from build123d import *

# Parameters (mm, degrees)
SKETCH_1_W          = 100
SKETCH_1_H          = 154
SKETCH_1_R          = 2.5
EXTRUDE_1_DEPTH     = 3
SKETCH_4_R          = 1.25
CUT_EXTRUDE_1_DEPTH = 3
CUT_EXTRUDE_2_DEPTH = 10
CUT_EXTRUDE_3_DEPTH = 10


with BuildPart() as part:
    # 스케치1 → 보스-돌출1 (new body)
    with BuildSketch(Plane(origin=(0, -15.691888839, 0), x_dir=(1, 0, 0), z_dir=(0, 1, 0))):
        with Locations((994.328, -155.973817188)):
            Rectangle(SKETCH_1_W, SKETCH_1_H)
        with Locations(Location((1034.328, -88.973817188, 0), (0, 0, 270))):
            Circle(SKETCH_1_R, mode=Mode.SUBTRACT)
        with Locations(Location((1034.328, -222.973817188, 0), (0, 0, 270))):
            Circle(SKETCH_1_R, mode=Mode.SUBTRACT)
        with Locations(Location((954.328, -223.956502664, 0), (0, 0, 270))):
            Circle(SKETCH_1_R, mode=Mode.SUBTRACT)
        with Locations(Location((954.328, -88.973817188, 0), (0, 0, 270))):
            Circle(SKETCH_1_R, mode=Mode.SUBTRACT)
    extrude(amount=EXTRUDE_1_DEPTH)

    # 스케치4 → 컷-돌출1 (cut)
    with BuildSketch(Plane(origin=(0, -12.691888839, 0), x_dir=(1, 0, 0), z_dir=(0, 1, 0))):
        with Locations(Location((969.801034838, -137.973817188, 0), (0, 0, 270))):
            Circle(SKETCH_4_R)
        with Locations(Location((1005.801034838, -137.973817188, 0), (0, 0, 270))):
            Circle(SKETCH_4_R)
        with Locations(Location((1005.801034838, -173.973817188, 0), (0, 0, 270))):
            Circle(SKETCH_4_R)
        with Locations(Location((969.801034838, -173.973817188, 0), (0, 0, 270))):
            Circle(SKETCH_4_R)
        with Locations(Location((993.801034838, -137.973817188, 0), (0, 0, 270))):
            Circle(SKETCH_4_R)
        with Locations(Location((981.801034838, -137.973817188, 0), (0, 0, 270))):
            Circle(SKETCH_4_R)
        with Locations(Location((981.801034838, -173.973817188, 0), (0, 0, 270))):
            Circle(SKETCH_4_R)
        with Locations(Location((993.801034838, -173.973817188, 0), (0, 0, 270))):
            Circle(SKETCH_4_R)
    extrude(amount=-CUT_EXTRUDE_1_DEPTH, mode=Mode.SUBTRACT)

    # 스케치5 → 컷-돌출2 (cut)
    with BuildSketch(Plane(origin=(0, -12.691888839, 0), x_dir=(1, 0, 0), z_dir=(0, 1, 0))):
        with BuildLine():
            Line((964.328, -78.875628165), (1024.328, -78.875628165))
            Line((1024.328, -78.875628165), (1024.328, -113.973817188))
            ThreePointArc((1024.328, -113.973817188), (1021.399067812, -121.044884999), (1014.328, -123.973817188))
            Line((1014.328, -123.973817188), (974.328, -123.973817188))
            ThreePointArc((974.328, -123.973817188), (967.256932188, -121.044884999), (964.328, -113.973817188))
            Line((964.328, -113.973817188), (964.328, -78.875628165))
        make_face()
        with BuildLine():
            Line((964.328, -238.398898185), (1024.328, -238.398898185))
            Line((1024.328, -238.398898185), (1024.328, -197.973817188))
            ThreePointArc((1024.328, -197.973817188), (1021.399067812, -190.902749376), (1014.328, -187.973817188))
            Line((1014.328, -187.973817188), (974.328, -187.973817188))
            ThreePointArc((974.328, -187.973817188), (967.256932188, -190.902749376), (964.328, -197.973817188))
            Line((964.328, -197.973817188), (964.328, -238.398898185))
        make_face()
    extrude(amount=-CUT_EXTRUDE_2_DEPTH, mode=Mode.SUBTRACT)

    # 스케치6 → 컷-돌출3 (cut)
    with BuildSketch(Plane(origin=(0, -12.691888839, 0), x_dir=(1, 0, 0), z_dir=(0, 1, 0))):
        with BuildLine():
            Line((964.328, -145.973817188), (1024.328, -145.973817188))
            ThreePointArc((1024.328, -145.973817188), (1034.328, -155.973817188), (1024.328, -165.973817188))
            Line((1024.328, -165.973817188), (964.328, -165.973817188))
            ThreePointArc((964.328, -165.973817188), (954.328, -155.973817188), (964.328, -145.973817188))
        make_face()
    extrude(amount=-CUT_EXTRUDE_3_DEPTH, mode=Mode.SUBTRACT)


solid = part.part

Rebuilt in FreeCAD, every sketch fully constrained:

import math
import FreeCAD as App
import Part
import Sketcher


def add_polygon(sketch, points):
    """Adds a closed chain of lines whose ends are joined by coincident constraints."""
    first, n = sketch.GeometryCount, len(points)
    for a, b in zip(points, points[1:] + points[:1]):
        sketch.addGeometry(Part.LineSegment(App.Vector(*a, 0), App.Vector(*b, 0)), False)
    for i in range(n):
        sketch.addConstraint(Sketcher.Constraint("Coincident", first + i, 2, first + (i + 1) % n, 1))

doc = App.newDocument("Part")
body = doc.addObject("PartDesign::Body", "Body")

# Sketch on XZ plane
sketch1 = doc.addObject("Sketcher::SketchObject", "Sketch")
body.addObject(sketch1)
sketch1.AttachmentSupport = (doc.XZ_Plane, [""])
sketch1.MapMode = "FlatFace"
sketch1.AttachmentOffset = App.Placement(App.Vector(0, 0, 15.691889), App.Rotation())
add_polygon(sketch1, [(944.328, 78.973817), (944.328, 232.973817), (1044.328, 232.973817), (1044.328, 78.973817)])  # lines 0-3
sketch1.addGeometry(Part.Circle(App.Vector(954.328, 223.956503, 0), App.Vector(0, 0, 1), 2.5), False)  # 4
sketch1.addGeometry(Part.Circle(App.Vector(1034.328, 222.973817, 0), App.Vector(0, 0, 1), 2.5), False)  # 5
sketch1.addGeometry(Part.Circle(App.Vector(954.328, 88.973817, 0), App.Vector(0, 0, 1), 2.5), False)  # 6
sketch1.addGeometry(Part.Circle(App.Vector(1034.328, 88.973817, 0), App.Vector(0, 0, 1), 2.5), False)  # 7
sketch1.addConstraint(Sketcher.Constraint("Vertical", 0))
sketch1.addConstraint(Sketcher.Constraint("Horizontal", 1))
sketch1.addConstraint(Sketcher.Constraint("Vertical", 2))
sketch1.addConstraint(Sketcher.Constraint("Horizontal", 3))
sketch1.addConstraint(Sketcher.Constraint("Equal", 4, 5))
sketch1.addConstraint(Sketcher.Constraint("Equal", 5, 6))
sketch1.addConstraint(Sketcher.Constraint("Equal", 6, 7))
sketch1.addConstraint(Sketcher.Constraint("Horizontal", 6, 3, 7, 3))
sketch1.addConstraint(Sketcher.Constraint("Vertical", 4, 3, 6, 3))
sketch1.addConstraint(Sketcher.Constraint("Vertical", 5, 3, 7, 3))
sketch1.addConstraint(Sketcher.Constraint("Diameter", 4, 5.0))
sketch1.addConstraint(Sketcher.Constraint("DistanceX", 1, 1, 1, 2, 100.0))
sketch1.addConstraint(Sketcher.Constraint("DistanceY", 0, 1, 0, 2, 154.0))
sketch1.addConstraint(Sketcher.Constraint("DistanceX", 4, 3, 5, 3, 80.0))
sketch1.addConstraint(Sketcher.Constraint("DistanceY", 6, 3, 5, 3, 134.0))
sketch1.addConstraint(Sketcher.Constraint("DistanceX", 0, 2, 4, 3, 10.0))
sketch1.addConstraint(Sketcher.Constraint("DistanceY", 5, 3, 0, 2, 10.0))
sketch1.addConstraint(Sketcher.Constraint("DistanceX", -1, 1, 4, 3, 954.328))
sketch1.addConstraint(Sketcher.Constraint("DistanceY", -1, 1, 4, 3, 223.956503))
sketch1.addConstraint(Sketcher.Constraint("DistanceY", -1, 1, 5, 3, 222.973817))
pad1 = doc.addObject("PartDesign::Pad", "Pad")
body.addObject(pad1)
pad1.Profile = sketch1
pad1.Length = 3
pad1.Reversed = True

# Sketch on XZ plane
sketch2 = doc.addObject("Sketcher::SketchObject", "Sketch001")
body.addObject(sketch2)
sketch2.AttachmentSupport = (doc.XZ_Plane, [""])
sketch2.MapMode = "FlatFace"
sketch2.AttachmentOffset = App.Placement(App.Vector(0, 0, 12.691889), App.Rotation())
sketch2.addGeometry(Part.Circle(App.Vector(969.801035, 137.973817, 0), App.Vector(0, 0, 1), 1.25), False)
sketch2.addGeometry(Part.Circle(App.Vector(1005.801035, 137.973817, 0), App.Vector(0, 0, 1), 1.25), False)
sketch2.addGeometry(Part.Circle(App.Vector(1005.801035, 173.973817, 0), App.Vector(0, 0, 1), 1.25), False)
sketch2.addGeometry(Part.Circle(App.Vector(969.801035, 173.973817, 0), App.Vector(0, 0, 1), 1.25), False)
sketch2.addGeometry(Part.Circle(App.Vector(993.801035, 137.973817, 0), App.Vector(0, 0, 1), 1.25), False)
sketch2.addGeometry(Part.Circle(App.Vector(981.801035, 137.973817, 0), App.Vector(0, 0, 1), 1.25), False)
sketch2.addGeometry(Part.Circle(App.Vector(981.801035, 173.973817, 0), App.Vector(0, 0, 1), 1.25), False)
sketch2.addGeometry(Part.Circle(App.Vector(993.801035, 173.973817, 0), App.Vector(0, 0, 1), 1.25), False)
sketch2.addConstraint(Sketcher.Constraint("Equal", 0, 1))
sketch2.addConstraint(Sketcher.Constraint("Equal", 1, 2))
sketch2.addConstraint(Sketcher.Constraint("Equal", 2, 3))
sketch2.addConstraint(Sketcher.Constraint("Equal", 3, 4))
sketch2.addConstraint(Sketcher.Constraint("Equal", 4, 5))
sketch2.addConstraint(Sketcher.Constraint("Equal", 5, 6))
sketch2.addConstraint(Sketcher.Constraint("Equal", 6, 7))
sketch2.addConstraint(Sketcher.Constraint("Horizontal", 0, 3, 1, 3))
sketch2.addConstraint(Sketcher.Constraint("Horizontal", 2, 3, 3, 3))
sketch2.addConstraint(Sketcher.Constraint("Horizontal", 1, 3, 4, 3))
sketch2.addConstraint(Sketcher.Constraint("Horizontal", 4, 3, 5, 3))
sketch2.addConstraint(Sketcher.Constraint("Horizontal", 3, 3, 6, 3))
sketch2.addConstraint(Sketcher.Constraint("Horizontal", 6, 3, 7, 3))
sketch2.addConstraint(Sketcher.Constraint("Vertical", 1, 3, 2, 3))
sketch2.addConstraint(Sketcher.Constraint("Vertical", 0, 3, 3, 3))
sketch2.addConstraint(Sketcher.Constraint("Vertical", 5, 3, 6, 3))
sketch2.addConstraint(Sketcher.Constraint("Vertical", 4, 3, 7, 3))
sketch2.addConstraint(Sketcher.Constraint("Diameter", 0, 2.5))
sketch2.addConstraint(Sketcher.Constraint("DistanceX", 0, 3, 1, 3, 36.0))
sketch2.addConstraint(Sketcher.Constraint("DistanceY", 1, 3, 2, 3, 36.0))
sketch2.addConstraint(Sketcher.Constraint("DistanceX", 4, 3, 1, 3, 12.0))
sketch2.addConstraint(Sketcher.Constraint("DistanceX", 0, 3, 5, 3, 12.0))
sketch2.addConstraint(Sketcher.Constraint("DistanceX", -1, 1, 0, 3, 969.801035))
sketch2.addConstraint(Sketcher.Constraint("DistanceY", -1, 1, 0, 3, 137.973817))
pocket1 = doc.addObject("PartDesign::Pocket", "Pocket")
body.addObject(pocket1)
pocket1.Profile = sketch2
pocket1.Length = 3
pocket1.Reversed = True

# Sketch on XZ plane
sketch3 = doc.addObject("Sketcher::SketchObject", "Sketch002")
body.addObject(sketch3)
sketch3.AttachmentSupport = (doc.XZ_Plane, [""])
sketch3.MapMode = "FlatFace"
sketch3.AttachmentOffset = App.Placement(App.Vector(0, 0, 12.691889), App.Rotation())
sketch3.addGeometry(Part.LineSegment(App.Vector(1024.328, 78.875628, 0), App.Vector(964.328, 78.875628, 0)), False)
sketch3.addGeometry(Part.LineSegment(App.Vector(964.328, 78.875628, 0), App.Vector(964.328, 113.973817, 0)), False)
sketch3.addGeometry(Part.ArcOfCircle(Part.Circle(App.Vector(974.328, 113.973817, 0), App.Vector(0, 0, 1), 10), math.radians(90), math.radians(180)), False)
sketch3.addGeometry(Part.LineSegment(App.Vector(974.328, 123.973817, 0), App.Vector(1014.328, 123.973817, 0)), False)
sketch3.addGeometry(Part.ArcOfCircle(Part.Circle(App.Vector(1014.328, 113.973817, 0), App.Vector(0, 0, 1), 10), math.radians(0), math.radians(90)), False)
sketch3.addGeometry(Part.LineSegment(App.Vector(1024.328, 113.973817, 0), App.Vector(1024.328, 78.875628, 0)), False)
sketch3.addGeometry(Part.LineSegment(App.Vector(964.328, 238.398898, 0), App.Vector(1024.328, 238.398898, 0)), False)
sketch3.addGeometry(Part.LineSegment(App.Vector(1024.328, 238.398898, 0), App.Vector(1024.328, 197.973817, 0)), False)
sketch3.addGeometry(Part.ArcOfCircle(Part.Circle(App.Vector(1014.328, 197.973817, 0), App.Vector(0, 0, 1), 10), math.radians(-90), math.radians(0)), False)
sketch3.addGeometry(Part.LineSegment(App.Vector(1014.328, 187.973817, 0), App.Vector(974.328, 187.973817, 0)), False)
sketch3.addGeometry(Part.ArcOfCircle(Part.Circle(App.Vector(974.328, 197.973817, 0), App.Vector(0, 0, 1), 10), math.radians(180), math.radians(270)), False)
sketch3.addGeometry(Part.LineSegment(App.Vector(964.328, 197.973817, 0), App.Vector(964.328, 238.398898, 0)), False)
sketch3.addConstraint(Sketcher.Constraint("Coincident", 0, 2, 1, 1))
sketch3.addConstraint(Sketcher.Constraint("Tangent", 1, 2, 2, 2))
sketch3.addConstraint(Sketcher.Constraint("Tangent", 2, 1, 3, 1))
sketch3.addConstraint(Sketcher.Constraint("Tangent", 3, 2, 4, 2))
sketch3.addConstraint(Sketcher.Constraint("Tangent", 4, 1, 5, 1))
sketch3.addConstraint(Sketcher.Constraint("Coincident", 5, 2, 0, 1))
sketch3.addConstraint(Sketcher.Constraint("Coincident", 6, 2, 7, 1))
sketch3.addConstraint(Sketcher.Constraint("Tangent", 7, 2, 8, 2))
sketch3.addConstraint(Sketcher.Constraint("Tangent", 8, 1, 9, 1))
sketch3.addConstraint(Sketcher.Constraint("Tangent", 9, 2, 10, 2))
sketch3.addConstraint(Sketcher.Constraint("Tangent", 10, 1, 11, 1))
sketch3.addConstraint(Sketcher.Constraint("Coincident", 11, 2, 6, 1))
sketch3.addConstraint(Sketcher.Constraint("Horizontal", 0))
sketch3.addConstraint(Sketcher.Constraint("Vertical", 1))
sketch3.addConstraint(Sketcher.Constraint("Horizontal", 3))
sketch3.addConstraint(Sketcher.Constraint("Vertical", 5))
sketch3.addConstraint(Sketcher.Constraint("Horizontal", 6))
sketch3.addConstraint(Sketcher.Constraint("Vertical", 7))
sketch3.addConstraint(Sketcher.Constraint("Horizontal", 9))
sketch3.addConstraint(Sketcher.Constraint("Vertical", 11))
sketch3.addConstraint(Sketcher.Constraint("Equal", 2, 4))
sketch3.addConstraint(Sketcher.Constraint("Equal", 4, 8))
sketch3.addConstraint(Sketcher.Constraint("Equal", 8, 10))
sketch3.addConstraint(Sketcher.Constraint("Vertical", 4, 3, 8, 3))
sketch3.addConstraint(Sketcher.Constraint("Vertical", 2, 3, 10, 3))
sketch3.addConstraint(Sketcher.Constraint("Radius", 2, 10.0))
sketch3.addConstraint(Sketcher.Constraint("DistanceX", 0, 2, 0, 1, 60.0))
sketch3.addConstraint(Sketcher.Constraint("DistanceY", 4, 3, 8, 3, 84.0))
sketch3.addConstraint(Sketcher.Constraint("DistanceX", -1, 1, 2, 3, 974.328))
sketch3.addConstraint(Sketcher.Constraint("DistanceY", 1, 1, 1, 2, 35.098189))
sketch3.addConstraint(Sketcher.Constraint("DistanceY", 7, 2, 7, 1, 40.425081))
sketch3.addConstraint(Sketcher.Constraint("DistanceY", -1, 1, 6, 2, 238.398898))
pocket2 = doc.addObject("PartDesign::Pocket", "Pocket001")
body.addObject(pocket2)
pocket2.Profile = sketch3
pocket2.Length = 10
pocket2.Reversed = True

# Sketch on XZ plane
sketch4 = doc.addObject("Sketcher::SketchObject", "Sketch003")
body.addObject(sketch4)
sketch4.AttachmentSupport = (doc.XZ_Plane, [""])
sketch4.MapMode = "FlatFace"
sketch4.AttachmentOffset = App.Placement(App.Vector(0, 0, 12.691889), App.Rotation())
sketch4.addGeometry(Part.LineSegment(App.Vector(1024.328, 145.973817, 0), App.Vector(964.328, 145.973817, 0)), False)
sketch4.addGeometry(Part.ArcOfCircle(Part.Circle(App.Vector(964.328, 155.973817, 0), App.Vector(0, 0, 1), 10), math.radians(90), math.radians(270)), False)
sketch4.addGeometry(Part.LineSegment(App.Vector(964.328, 165.973817, 0), App.Vector(1024.328, 165.973817, 0)), False)
sketch4.addGeometry(Part.ArcOfCircle(Part.Circle(App.Vector(1024.328, 155.973817, 0), App.Vector(0, 0, 1), 10), math.radians(-90), math.radians(90)), False)
sketch4.addConstraint(Sketcher.Constraint("Tangent", 0, 2, 1, 2))
sketch4.addConstraint(Sketcher.Constraint("Tangent", 1, 1, 2, 1))
sketch4.addConstraint(Sketcher.Constraint("Tangent", 2, 2, 3, 2))
sketch4.addConstraint(Sketcher.Constraint("Tangent", 3, 1, 0, 1))
sketch4.addConstraint(Sketcher.Constraint("Horizontal", 0))
sketch4.addConstraint(Sketcher.Constraint("Horizontal", 2))
sketch4.addConstraint(Sketcher.Constraint("Radius", 1, 10.0))
sketch4.addConstraint(Sketcher.Constraint("DistanceX", 0, 2, 0, 1, 60.0))
sketch4.addConstraint(Sketcher.Constraint("DistanceX", -1, 1, 1, 3, 964.328))
sketch4.addConstraint(Sketcher.Constraint("DistanceY", -1, 1, 1, 3, 155.973817))
pocket3 = doc.addObject("PartDesign::Pocket", "Pocket002")
body.addObject(pocket3)
pocket3.Profile = sketch4
pocket3.Length = 10
pocket3.Reversed = True

doc.recompute()
